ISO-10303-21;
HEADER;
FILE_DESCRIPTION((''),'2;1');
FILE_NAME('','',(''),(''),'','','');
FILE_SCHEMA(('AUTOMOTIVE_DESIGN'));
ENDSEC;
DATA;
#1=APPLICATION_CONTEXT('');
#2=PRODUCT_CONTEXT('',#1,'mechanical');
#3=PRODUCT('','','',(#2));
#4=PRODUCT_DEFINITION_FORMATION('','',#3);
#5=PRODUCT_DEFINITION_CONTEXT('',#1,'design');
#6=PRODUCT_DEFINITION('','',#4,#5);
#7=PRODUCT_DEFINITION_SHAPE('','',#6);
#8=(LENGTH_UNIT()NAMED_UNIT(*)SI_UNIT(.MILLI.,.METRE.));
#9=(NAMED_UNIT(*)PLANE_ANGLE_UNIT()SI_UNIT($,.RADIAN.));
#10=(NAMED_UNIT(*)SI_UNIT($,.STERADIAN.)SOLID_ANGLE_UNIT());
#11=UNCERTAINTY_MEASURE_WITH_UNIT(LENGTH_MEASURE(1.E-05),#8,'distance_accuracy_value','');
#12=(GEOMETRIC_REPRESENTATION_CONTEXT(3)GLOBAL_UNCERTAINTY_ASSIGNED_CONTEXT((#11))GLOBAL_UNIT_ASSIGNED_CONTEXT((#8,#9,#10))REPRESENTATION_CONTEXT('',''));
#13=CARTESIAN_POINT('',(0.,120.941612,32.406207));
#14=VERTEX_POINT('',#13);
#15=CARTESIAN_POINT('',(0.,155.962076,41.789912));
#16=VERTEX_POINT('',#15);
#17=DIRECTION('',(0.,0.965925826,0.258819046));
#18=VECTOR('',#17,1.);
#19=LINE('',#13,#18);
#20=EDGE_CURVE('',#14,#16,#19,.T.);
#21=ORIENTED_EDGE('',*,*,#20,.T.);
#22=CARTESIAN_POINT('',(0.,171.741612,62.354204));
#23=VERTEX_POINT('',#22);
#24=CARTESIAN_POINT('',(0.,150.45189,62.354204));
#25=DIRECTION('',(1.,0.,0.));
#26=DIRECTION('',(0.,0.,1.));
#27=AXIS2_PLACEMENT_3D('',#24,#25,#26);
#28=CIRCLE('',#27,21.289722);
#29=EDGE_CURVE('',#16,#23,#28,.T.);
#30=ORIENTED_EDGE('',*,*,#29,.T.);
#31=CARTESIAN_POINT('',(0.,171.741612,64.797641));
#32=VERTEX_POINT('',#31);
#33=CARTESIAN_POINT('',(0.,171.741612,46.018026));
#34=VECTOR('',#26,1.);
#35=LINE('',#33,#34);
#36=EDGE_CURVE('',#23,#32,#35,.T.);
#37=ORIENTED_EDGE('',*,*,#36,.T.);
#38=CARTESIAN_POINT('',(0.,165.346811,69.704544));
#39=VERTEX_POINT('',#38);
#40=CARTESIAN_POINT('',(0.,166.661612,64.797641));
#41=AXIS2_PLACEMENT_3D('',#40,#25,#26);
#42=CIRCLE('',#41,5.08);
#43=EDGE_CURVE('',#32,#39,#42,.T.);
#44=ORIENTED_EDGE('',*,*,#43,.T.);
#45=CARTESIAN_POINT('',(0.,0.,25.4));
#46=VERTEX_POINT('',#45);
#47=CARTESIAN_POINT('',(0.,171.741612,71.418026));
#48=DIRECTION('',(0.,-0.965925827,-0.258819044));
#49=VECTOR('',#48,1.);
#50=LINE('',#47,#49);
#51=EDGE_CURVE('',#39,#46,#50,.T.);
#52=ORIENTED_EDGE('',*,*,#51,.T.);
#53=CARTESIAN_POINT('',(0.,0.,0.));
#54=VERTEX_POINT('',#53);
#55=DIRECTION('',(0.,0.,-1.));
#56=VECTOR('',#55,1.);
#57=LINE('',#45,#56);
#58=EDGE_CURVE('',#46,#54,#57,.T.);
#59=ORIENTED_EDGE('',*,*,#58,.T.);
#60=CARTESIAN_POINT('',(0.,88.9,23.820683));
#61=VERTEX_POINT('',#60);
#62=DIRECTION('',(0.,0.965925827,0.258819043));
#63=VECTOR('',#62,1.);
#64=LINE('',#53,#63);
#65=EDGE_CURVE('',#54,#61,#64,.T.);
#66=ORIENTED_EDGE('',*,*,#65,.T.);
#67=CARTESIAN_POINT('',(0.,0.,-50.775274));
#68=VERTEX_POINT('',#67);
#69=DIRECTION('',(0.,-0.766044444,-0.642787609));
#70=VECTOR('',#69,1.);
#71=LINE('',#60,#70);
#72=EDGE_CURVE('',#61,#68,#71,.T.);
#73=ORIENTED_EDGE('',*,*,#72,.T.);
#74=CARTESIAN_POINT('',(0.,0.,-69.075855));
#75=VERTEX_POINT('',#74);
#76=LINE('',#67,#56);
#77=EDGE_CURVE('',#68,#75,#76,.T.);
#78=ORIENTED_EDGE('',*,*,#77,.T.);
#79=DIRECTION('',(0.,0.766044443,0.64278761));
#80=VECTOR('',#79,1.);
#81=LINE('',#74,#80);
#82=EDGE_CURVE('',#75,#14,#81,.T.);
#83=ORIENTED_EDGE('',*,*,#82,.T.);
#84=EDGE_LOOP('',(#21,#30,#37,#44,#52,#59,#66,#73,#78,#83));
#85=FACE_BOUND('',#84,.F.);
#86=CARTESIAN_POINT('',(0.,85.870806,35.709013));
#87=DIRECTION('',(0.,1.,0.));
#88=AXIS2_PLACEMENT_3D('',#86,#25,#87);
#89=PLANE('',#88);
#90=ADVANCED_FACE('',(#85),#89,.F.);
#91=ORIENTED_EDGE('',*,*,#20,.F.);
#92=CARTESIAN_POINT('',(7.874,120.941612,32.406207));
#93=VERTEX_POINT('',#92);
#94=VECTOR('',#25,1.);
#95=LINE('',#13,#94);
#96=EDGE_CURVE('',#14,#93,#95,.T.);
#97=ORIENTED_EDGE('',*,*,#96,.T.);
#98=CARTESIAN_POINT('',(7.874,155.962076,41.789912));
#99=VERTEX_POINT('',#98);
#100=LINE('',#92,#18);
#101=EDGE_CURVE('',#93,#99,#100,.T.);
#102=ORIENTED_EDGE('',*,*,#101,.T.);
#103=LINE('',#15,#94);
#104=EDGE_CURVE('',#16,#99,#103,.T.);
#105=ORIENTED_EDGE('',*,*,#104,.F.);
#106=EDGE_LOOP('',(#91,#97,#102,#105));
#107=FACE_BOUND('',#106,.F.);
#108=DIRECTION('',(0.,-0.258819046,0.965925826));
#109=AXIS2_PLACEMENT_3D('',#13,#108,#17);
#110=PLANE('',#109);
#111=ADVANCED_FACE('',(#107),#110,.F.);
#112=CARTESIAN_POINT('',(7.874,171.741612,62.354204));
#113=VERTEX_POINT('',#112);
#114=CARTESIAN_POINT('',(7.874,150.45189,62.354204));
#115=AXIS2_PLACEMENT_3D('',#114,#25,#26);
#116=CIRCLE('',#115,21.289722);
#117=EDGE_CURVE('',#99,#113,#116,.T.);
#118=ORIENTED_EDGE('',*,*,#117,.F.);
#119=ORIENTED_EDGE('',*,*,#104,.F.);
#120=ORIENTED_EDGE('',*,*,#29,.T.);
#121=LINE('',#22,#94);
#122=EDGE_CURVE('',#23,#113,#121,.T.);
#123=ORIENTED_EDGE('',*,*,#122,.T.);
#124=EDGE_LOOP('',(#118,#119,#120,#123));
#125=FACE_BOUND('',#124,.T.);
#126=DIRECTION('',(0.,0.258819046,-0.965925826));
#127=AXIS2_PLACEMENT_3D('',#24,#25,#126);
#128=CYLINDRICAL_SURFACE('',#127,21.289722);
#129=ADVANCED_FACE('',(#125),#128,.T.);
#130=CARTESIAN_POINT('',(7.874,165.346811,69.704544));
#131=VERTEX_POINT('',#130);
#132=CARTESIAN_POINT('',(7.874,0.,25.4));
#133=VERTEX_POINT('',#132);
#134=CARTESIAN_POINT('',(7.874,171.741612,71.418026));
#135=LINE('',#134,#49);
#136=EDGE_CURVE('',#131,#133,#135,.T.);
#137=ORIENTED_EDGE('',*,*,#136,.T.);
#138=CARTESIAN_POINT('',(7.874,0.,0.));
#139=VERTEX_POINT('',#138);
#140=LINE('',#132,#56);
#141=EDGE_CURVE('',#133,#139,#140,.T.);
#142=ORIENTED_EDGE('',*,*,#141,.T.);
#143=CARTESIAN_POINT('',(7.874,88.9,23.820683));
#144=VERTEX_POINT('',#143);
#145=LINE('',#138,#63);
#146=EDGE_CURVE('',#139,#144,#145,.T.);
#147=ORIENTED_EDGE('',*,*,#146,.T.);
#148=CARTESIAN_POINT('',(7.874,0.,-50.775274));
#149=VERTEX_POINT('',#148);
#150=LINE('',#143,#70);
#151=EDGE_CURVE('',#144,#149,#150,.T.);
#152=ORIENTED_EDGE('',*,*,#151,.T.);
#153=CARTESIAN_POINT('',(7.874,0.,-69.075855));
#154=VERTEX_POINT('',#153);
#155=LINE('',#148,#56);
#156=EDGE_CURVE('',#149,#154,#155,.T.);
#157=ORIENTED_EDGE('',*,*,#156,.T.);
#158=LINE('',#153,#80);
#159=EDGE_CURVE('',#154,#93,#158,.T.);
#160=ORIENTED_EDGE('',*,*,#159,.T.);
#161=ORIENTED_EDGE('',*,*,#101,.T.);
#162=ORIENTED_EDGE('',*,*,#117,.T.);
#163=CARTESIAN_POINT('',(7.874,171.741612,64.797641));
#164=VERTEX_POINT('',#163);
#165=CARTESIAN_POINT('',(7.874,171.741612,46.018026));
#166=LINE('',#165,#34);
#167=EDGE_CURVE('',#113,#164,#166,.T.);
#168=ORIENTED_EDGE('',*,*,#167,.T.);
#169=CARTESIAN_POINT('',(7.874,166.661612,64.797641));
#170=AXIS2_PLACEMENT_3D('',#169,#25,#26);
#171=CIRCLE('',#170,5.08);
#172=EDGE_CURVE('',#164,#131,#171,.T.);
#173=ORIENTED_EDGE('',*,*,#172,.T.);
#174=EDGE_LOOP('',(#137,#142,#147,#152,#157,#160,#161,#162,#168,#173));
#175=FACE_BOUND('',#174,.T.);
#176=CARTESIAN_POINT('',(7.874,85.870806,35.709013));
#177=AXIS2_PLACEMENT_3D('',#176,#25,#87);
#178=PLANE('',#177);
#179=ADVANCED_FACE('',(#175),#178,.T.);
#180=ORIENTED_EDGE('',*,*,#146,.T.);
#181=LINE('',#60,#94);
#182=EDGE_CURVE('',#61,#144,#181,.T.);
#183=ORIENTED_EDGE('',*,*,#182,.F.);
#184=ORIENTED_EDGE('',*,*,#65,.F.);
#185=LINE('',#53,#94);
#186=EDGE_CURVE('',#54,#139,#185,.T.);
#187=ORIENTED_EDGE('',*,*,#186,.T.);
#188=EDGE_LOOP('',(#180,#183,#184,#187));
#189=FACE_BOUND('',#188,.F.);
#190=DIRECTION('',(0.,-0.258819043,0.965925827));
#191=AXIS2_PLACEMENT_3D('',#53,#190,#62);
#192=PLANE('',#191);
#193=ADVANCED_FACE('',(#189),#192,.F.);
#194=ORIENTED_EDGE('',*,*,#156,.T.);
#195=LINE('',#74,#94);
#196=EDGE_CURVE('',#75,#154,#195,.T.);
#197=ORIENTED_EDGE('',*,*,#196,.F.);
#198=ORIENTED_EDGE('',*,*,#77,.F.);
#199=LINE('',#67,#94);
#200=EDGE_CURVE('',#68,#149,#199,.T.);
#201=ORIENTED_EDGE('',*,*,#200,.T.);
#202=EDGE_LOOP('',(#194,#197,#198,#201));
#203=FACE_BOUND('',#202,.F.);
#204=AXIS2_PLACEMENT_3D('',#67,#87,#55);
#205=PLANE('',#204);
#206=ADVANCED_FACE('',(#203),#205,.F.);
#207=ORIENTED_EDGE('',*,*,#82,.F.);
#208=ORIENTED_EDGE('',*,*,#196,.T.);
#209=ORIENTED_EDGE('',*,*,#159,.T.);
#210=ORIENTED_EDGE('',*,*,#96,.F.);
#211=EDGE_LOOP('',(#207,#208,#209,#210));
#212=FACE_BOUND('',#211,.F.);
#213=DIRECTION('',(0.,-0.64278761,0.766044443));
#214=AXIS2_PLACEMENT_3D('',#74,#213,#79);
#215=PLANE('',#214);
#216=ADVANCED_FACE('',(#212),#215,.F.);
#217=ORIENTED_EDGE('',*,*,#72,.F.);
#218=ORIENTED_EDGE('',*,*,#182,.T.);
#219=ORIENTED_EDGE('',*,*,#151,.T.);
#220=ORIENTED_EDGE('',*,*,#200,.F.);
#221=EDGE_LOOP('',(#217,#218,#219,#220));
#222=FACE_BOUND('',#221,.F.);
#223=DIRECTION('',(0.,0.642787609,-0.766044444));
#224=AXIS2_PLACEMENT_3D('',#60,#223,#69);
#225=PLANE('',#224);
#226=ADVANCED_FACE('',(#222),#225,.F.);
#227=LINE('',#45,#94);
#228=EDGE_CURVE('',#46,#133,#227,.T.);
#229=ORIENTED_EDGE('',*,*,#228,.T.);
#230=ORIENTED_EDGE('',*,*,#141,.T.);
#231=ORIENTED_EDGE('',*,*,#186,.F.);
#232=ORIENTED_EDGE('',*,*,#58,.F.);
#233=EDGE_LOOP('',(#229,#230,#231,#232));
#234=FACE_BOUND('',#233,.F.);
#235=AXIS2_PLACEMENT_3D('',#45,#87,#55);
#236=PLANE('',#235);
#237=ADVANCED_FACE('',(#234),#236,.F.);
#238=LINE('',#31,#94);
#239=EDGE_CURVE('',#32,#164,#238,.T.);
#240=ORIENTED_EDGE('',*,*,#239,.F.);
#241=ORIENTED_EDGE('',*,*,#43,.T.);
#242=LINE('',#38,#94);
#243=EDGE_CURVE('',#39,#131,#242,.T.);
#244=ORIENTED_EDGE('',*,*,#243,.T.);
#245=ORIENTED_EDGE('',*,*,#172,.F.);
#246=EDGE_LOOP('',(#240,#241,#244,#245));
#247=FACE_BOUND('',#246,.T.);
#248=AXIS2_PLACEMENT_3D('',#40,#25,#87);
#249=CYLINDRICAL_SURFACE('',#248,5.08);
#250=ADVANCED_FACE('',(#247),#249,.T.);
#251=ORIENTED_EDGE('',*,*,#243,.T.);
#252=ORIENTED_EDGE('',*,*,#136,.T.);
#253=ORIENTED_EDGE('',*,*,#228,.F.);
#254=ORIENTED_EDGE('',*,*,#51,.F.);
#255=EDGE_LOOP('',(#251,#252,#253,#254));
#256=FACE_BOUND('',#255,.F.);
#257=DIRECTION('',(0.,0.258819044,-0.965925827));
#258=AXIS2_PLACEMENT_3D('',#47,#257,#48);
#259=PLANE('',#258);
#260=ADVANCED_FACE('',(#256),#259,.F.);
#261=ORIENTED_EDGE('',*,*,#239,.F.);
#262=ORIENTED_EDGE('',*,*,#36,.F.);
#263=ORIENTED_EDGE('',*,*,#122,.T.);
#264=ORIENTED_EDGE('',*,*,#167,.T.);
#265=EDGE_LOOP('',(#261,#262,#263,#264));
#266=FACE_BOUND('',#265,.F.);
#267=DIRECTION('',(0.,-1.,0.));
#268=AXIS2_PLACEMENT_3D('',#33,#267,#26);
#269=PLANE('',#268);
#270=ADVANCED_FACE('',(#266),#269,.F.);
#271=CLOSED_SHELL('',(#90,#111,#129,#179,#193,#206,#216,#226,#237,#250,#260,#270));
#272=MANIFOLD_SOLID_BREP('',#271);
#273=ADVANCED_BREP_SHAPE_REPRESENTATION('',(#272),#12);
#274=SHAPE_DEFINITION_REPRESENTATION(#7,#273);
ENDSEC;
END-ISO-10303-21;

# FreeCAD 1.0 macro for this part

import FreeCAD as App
import Part
import Sketcher
Q = App.Units.Quantity


def edges_at(feature, points):
    """Names of the edges that pass closest to the given points."""
    edges = feature.Shape.Edges
    near = lambda p: min(range(len(edges)), key=lambda i: edges[i].distToShape(Part.Vertex(*p))[0])
    return sorted({f"Edge{near(p) + 1}" for p in points})

doc = App.newDocument("Part")
body = doc.addObject("PartDesign::Body", "Body")

sketch1 = body.newObject("Sketcher::SketchObject", "Sketch")
sketch1.AttachmentSupport = (doc.getObject("YZ_Plane"), [""])
sketch1.MapMode = "FlatFace"
sketch1.addGeometry([
    Part.LineSegment(App.Vector(0, 25, 0), App.Vector(0, 0, 0)),
    Part.LineSegment(App.Vector(0, 0, 0), App.Vector(89, 24, 0)),
    Part.LineSegment(App.Vector(89, 24, 0), App.Vector(0, -51, 0)),
    Part.LineSegment(App.Vector(0, -51, 0), App.Vector(0, -69, 0)),
    Part.LineSegment(App.Vector(0, -69, 0), App.Vector(121, 32, 0)),
    Part.LineSegment(App.Vector(121, 32, 0), App.Vector(172, 46, 0)),
    Part.LineSegment(App.Vector(172, 46, 0), App.Vector(172, 71, 0)),
    Part.LineSegment(App.Vector(172, 71, 0), App.Vector(0, 25, 0)),
], False)
sketch1.addConstraint([
    Sketcher.Constraint("Coincident", 0, 2, 1, 1),
    Sketcher.Constraint("Coincident", 1, 2, 2, 1),
    Sketcher.Constraint("Coincident", 2, 2, 3, 1),
    Sketcher.Constraint("Coincident", 3, 2, 4, 1),
    Sketcher.Constraint("Coincident", 4, 2, 5, 1),
    Sketcher.Constraint("Coincident", 5, 2, 6, 1),
    Sketcher.Constraint("Coincident", 6, 2, 7, 1),
    Sketcher.Constraint("Coincident", 7, 2, 0, 1),
    Sketcher.Constraint("Vertical", 0),
    Sketcher.Constraint("Vertical", 3),
    Sketcher.Constraint("Vertical", 6),
    Sketcher.Constraint("Coincident", 0, 2, -1, 1),
    Sketcher.Constraint("PointOnObject", 2, 2, -2),
    Sketcher.Constraint("Parallel", 2, 4),
    Sketcher.Constraint("Parallel", 1, 5),
    Sketcher.Constraint("Parallel", 5, 7),
    Sketcher.Constraint("Equal", 0, 6),
    Sketcher.Constraint("DistanceY", 0, 2, 0, 1, Q("1 in")),
    Sketcher.Constraint("Distance", 7, Q("7 in")),
    Sketcher.Constraint("Angle", 1, Q("15 deg")),
    Sketcher.Constraint("Angle", 2, Q("-140 deg")),
    Sketcher.Constraint("DistanceX", 4, 2, 5, 2, Q("2 in")),
    Sketcher.Constraint("DistanceX", -1, 1, 1, 2, Q("3.5 in")),
])
pad1 = body.newObject("PartDesign::Pad", "Pad")
pad1.Profile = sketch1
pad1.Length = Q("0.31 in")
doc.recompute()

fillet = body.newObject("PartDesign::Fillet", "Fillet")
fillet.Base = (pad1, edges_at(pad1, [(3.937, 171.742, 46.018)]))
fillet.Radius = 21.289722
doc.recompute()

fillet2 = body.newObject("PartDesign::Fillet", "Fillet001")
fillet2.Base = (fillet, edges_at(fillet, [(3.937, 171.742, 71.418)]))
fillet2.Radius = Q("0.2 in")

doc.recompute()
